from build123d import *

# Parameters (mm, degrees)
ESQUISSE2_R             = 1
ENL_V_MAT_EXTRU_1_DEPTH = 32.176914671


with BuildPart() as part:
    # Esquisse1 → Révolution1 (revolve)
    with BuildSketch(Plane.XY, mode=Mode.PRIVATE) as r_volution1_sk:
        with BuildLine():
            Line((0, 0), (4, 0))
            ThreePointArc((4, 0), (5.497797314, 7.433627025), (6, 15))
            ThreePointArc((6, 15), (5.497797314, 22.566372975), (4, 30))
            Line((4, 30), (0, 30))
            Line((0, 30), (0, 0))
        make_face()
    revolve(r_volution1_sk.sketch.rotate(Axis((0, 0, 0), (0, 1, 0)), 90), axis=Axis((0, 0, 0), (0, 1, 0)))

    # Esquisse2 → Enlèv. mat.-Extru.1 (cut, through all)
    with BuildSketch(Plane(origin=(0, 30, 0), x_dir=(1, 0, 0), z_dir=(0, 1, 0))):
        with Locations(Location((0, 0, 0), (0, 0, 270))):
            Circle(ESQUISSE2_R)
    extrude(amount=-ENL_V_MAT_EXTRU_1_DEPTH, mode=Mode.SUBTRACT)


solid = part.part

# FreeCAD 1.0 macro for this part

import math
import FreeCAD as App
import Part
import Sketcher

V = App.Vector
Q = App.Units.Quantity

doc = App.newDocument("Part")
body = doc.addObject("PartDesign::Body", "Body")

# Sketch on XY plane
sketch1 = body.newObject("Sketcher::SketchObject", "Sketch")
sketch1.AttachmentSupport = (doc.getObject("XY_Plane"), [""])
sketch1.MapMode = "FlatFace"
sketch1.addGeometry([
    Part.LineSegment(V(0, 0, 0), V(4, 0, 0)),  # 0
    Part.ArcOfCircle(Part.Circle(V(-51.3, 15, 0), V(0, 0, 1), 57.3), math.radians(-15.19), math.radians(0)),  # 1
    Part.ArcOfCircle(Part.Circle(V(-51.3, 15, 0), V(0, 0, 1), 57.3), math.radians(0), math.radians(15.19)),  # 2
    Part.LineSegment(V(4, 30, 0), V(0, 30, 0)),  # 3
    Part.LineSegment(V(0, 30, 0), V(0, 0, 0)),  # 4
], False)
sketch1.addConstraint([
    Sketcher.Constraint("Coincident", 0, 2, 1, 1),
    Sketcher.Constraint("Tangent", 1, 2, 2, 1),
    Sketcher.Constraint("Coincident", 2, 2, 3, 1),
    Sketcher.Constraint("Coincident", 3, 2, 4, 1),
    Sketcher.Constraint("Coincident", 4, 2, 0, 1),
    Sketcher.Constraint("Horizontal", 0),
    Sketcher.Constraint("Horizontal", 3),
    Sketcher.Constraint("Vertical", 4),
    Sketcher.Constraint("Coincident", 4, 2, -1, 1),
    Sketcher.Constraint("Equal", 1, 2),
    Sketcher.Constraint("Horizontal", 2, 3, 1, 2),
    Sketcher.Constraint("Vertical", 0, 2, 2, 2),
    Sketcher.Constraint("DistanceX", 0, 1, 0, 2, Q("4 mm")),
    Sketcher.Constraint("DistanceY", 4, 2, 4, 1, Q("30 mm")),
    Sketcher.Constraint("Radius", 1, Q("57.25 mm")),
])
revolution = body.newObject("PartDesign::Revolution", "Revolution")
revolution.Profile = sketch1
revolution.ReferenceAxis = (sketch1, ["V_Axis"])
revolution.Angle = 360

# Sketch on XZ plane
sketch2 = body.newObject("Sketcher::SketchObject", "Sketch001")
sketch2.AttachmentSupport = (doc.getObject("XZ_Plane"), [""])
sketch2.MapMode = "FlatFace"
sketch2.AttachmentOffset = App.Placement(V(0, 0, -30), App.Rotation())
sketch2.addGeometry(Part.Circle(V(0, 0, 0), V(0, 0, 1), 1), False)
sketch2.addConstraint([
    Sketcher.Constraint("Coincident", 0, 3, -1, 1),
    Sketcher.Constraint("Diameter", 0, Q("2 mm")),
])
pocket1 = body.newObject("PartDesign::Pocket", "Pocket")
pocket1.Profile = sketch2
pocket1.Type = "ThroughAll"
pocket1.Reversed = True

doc.recompute()
